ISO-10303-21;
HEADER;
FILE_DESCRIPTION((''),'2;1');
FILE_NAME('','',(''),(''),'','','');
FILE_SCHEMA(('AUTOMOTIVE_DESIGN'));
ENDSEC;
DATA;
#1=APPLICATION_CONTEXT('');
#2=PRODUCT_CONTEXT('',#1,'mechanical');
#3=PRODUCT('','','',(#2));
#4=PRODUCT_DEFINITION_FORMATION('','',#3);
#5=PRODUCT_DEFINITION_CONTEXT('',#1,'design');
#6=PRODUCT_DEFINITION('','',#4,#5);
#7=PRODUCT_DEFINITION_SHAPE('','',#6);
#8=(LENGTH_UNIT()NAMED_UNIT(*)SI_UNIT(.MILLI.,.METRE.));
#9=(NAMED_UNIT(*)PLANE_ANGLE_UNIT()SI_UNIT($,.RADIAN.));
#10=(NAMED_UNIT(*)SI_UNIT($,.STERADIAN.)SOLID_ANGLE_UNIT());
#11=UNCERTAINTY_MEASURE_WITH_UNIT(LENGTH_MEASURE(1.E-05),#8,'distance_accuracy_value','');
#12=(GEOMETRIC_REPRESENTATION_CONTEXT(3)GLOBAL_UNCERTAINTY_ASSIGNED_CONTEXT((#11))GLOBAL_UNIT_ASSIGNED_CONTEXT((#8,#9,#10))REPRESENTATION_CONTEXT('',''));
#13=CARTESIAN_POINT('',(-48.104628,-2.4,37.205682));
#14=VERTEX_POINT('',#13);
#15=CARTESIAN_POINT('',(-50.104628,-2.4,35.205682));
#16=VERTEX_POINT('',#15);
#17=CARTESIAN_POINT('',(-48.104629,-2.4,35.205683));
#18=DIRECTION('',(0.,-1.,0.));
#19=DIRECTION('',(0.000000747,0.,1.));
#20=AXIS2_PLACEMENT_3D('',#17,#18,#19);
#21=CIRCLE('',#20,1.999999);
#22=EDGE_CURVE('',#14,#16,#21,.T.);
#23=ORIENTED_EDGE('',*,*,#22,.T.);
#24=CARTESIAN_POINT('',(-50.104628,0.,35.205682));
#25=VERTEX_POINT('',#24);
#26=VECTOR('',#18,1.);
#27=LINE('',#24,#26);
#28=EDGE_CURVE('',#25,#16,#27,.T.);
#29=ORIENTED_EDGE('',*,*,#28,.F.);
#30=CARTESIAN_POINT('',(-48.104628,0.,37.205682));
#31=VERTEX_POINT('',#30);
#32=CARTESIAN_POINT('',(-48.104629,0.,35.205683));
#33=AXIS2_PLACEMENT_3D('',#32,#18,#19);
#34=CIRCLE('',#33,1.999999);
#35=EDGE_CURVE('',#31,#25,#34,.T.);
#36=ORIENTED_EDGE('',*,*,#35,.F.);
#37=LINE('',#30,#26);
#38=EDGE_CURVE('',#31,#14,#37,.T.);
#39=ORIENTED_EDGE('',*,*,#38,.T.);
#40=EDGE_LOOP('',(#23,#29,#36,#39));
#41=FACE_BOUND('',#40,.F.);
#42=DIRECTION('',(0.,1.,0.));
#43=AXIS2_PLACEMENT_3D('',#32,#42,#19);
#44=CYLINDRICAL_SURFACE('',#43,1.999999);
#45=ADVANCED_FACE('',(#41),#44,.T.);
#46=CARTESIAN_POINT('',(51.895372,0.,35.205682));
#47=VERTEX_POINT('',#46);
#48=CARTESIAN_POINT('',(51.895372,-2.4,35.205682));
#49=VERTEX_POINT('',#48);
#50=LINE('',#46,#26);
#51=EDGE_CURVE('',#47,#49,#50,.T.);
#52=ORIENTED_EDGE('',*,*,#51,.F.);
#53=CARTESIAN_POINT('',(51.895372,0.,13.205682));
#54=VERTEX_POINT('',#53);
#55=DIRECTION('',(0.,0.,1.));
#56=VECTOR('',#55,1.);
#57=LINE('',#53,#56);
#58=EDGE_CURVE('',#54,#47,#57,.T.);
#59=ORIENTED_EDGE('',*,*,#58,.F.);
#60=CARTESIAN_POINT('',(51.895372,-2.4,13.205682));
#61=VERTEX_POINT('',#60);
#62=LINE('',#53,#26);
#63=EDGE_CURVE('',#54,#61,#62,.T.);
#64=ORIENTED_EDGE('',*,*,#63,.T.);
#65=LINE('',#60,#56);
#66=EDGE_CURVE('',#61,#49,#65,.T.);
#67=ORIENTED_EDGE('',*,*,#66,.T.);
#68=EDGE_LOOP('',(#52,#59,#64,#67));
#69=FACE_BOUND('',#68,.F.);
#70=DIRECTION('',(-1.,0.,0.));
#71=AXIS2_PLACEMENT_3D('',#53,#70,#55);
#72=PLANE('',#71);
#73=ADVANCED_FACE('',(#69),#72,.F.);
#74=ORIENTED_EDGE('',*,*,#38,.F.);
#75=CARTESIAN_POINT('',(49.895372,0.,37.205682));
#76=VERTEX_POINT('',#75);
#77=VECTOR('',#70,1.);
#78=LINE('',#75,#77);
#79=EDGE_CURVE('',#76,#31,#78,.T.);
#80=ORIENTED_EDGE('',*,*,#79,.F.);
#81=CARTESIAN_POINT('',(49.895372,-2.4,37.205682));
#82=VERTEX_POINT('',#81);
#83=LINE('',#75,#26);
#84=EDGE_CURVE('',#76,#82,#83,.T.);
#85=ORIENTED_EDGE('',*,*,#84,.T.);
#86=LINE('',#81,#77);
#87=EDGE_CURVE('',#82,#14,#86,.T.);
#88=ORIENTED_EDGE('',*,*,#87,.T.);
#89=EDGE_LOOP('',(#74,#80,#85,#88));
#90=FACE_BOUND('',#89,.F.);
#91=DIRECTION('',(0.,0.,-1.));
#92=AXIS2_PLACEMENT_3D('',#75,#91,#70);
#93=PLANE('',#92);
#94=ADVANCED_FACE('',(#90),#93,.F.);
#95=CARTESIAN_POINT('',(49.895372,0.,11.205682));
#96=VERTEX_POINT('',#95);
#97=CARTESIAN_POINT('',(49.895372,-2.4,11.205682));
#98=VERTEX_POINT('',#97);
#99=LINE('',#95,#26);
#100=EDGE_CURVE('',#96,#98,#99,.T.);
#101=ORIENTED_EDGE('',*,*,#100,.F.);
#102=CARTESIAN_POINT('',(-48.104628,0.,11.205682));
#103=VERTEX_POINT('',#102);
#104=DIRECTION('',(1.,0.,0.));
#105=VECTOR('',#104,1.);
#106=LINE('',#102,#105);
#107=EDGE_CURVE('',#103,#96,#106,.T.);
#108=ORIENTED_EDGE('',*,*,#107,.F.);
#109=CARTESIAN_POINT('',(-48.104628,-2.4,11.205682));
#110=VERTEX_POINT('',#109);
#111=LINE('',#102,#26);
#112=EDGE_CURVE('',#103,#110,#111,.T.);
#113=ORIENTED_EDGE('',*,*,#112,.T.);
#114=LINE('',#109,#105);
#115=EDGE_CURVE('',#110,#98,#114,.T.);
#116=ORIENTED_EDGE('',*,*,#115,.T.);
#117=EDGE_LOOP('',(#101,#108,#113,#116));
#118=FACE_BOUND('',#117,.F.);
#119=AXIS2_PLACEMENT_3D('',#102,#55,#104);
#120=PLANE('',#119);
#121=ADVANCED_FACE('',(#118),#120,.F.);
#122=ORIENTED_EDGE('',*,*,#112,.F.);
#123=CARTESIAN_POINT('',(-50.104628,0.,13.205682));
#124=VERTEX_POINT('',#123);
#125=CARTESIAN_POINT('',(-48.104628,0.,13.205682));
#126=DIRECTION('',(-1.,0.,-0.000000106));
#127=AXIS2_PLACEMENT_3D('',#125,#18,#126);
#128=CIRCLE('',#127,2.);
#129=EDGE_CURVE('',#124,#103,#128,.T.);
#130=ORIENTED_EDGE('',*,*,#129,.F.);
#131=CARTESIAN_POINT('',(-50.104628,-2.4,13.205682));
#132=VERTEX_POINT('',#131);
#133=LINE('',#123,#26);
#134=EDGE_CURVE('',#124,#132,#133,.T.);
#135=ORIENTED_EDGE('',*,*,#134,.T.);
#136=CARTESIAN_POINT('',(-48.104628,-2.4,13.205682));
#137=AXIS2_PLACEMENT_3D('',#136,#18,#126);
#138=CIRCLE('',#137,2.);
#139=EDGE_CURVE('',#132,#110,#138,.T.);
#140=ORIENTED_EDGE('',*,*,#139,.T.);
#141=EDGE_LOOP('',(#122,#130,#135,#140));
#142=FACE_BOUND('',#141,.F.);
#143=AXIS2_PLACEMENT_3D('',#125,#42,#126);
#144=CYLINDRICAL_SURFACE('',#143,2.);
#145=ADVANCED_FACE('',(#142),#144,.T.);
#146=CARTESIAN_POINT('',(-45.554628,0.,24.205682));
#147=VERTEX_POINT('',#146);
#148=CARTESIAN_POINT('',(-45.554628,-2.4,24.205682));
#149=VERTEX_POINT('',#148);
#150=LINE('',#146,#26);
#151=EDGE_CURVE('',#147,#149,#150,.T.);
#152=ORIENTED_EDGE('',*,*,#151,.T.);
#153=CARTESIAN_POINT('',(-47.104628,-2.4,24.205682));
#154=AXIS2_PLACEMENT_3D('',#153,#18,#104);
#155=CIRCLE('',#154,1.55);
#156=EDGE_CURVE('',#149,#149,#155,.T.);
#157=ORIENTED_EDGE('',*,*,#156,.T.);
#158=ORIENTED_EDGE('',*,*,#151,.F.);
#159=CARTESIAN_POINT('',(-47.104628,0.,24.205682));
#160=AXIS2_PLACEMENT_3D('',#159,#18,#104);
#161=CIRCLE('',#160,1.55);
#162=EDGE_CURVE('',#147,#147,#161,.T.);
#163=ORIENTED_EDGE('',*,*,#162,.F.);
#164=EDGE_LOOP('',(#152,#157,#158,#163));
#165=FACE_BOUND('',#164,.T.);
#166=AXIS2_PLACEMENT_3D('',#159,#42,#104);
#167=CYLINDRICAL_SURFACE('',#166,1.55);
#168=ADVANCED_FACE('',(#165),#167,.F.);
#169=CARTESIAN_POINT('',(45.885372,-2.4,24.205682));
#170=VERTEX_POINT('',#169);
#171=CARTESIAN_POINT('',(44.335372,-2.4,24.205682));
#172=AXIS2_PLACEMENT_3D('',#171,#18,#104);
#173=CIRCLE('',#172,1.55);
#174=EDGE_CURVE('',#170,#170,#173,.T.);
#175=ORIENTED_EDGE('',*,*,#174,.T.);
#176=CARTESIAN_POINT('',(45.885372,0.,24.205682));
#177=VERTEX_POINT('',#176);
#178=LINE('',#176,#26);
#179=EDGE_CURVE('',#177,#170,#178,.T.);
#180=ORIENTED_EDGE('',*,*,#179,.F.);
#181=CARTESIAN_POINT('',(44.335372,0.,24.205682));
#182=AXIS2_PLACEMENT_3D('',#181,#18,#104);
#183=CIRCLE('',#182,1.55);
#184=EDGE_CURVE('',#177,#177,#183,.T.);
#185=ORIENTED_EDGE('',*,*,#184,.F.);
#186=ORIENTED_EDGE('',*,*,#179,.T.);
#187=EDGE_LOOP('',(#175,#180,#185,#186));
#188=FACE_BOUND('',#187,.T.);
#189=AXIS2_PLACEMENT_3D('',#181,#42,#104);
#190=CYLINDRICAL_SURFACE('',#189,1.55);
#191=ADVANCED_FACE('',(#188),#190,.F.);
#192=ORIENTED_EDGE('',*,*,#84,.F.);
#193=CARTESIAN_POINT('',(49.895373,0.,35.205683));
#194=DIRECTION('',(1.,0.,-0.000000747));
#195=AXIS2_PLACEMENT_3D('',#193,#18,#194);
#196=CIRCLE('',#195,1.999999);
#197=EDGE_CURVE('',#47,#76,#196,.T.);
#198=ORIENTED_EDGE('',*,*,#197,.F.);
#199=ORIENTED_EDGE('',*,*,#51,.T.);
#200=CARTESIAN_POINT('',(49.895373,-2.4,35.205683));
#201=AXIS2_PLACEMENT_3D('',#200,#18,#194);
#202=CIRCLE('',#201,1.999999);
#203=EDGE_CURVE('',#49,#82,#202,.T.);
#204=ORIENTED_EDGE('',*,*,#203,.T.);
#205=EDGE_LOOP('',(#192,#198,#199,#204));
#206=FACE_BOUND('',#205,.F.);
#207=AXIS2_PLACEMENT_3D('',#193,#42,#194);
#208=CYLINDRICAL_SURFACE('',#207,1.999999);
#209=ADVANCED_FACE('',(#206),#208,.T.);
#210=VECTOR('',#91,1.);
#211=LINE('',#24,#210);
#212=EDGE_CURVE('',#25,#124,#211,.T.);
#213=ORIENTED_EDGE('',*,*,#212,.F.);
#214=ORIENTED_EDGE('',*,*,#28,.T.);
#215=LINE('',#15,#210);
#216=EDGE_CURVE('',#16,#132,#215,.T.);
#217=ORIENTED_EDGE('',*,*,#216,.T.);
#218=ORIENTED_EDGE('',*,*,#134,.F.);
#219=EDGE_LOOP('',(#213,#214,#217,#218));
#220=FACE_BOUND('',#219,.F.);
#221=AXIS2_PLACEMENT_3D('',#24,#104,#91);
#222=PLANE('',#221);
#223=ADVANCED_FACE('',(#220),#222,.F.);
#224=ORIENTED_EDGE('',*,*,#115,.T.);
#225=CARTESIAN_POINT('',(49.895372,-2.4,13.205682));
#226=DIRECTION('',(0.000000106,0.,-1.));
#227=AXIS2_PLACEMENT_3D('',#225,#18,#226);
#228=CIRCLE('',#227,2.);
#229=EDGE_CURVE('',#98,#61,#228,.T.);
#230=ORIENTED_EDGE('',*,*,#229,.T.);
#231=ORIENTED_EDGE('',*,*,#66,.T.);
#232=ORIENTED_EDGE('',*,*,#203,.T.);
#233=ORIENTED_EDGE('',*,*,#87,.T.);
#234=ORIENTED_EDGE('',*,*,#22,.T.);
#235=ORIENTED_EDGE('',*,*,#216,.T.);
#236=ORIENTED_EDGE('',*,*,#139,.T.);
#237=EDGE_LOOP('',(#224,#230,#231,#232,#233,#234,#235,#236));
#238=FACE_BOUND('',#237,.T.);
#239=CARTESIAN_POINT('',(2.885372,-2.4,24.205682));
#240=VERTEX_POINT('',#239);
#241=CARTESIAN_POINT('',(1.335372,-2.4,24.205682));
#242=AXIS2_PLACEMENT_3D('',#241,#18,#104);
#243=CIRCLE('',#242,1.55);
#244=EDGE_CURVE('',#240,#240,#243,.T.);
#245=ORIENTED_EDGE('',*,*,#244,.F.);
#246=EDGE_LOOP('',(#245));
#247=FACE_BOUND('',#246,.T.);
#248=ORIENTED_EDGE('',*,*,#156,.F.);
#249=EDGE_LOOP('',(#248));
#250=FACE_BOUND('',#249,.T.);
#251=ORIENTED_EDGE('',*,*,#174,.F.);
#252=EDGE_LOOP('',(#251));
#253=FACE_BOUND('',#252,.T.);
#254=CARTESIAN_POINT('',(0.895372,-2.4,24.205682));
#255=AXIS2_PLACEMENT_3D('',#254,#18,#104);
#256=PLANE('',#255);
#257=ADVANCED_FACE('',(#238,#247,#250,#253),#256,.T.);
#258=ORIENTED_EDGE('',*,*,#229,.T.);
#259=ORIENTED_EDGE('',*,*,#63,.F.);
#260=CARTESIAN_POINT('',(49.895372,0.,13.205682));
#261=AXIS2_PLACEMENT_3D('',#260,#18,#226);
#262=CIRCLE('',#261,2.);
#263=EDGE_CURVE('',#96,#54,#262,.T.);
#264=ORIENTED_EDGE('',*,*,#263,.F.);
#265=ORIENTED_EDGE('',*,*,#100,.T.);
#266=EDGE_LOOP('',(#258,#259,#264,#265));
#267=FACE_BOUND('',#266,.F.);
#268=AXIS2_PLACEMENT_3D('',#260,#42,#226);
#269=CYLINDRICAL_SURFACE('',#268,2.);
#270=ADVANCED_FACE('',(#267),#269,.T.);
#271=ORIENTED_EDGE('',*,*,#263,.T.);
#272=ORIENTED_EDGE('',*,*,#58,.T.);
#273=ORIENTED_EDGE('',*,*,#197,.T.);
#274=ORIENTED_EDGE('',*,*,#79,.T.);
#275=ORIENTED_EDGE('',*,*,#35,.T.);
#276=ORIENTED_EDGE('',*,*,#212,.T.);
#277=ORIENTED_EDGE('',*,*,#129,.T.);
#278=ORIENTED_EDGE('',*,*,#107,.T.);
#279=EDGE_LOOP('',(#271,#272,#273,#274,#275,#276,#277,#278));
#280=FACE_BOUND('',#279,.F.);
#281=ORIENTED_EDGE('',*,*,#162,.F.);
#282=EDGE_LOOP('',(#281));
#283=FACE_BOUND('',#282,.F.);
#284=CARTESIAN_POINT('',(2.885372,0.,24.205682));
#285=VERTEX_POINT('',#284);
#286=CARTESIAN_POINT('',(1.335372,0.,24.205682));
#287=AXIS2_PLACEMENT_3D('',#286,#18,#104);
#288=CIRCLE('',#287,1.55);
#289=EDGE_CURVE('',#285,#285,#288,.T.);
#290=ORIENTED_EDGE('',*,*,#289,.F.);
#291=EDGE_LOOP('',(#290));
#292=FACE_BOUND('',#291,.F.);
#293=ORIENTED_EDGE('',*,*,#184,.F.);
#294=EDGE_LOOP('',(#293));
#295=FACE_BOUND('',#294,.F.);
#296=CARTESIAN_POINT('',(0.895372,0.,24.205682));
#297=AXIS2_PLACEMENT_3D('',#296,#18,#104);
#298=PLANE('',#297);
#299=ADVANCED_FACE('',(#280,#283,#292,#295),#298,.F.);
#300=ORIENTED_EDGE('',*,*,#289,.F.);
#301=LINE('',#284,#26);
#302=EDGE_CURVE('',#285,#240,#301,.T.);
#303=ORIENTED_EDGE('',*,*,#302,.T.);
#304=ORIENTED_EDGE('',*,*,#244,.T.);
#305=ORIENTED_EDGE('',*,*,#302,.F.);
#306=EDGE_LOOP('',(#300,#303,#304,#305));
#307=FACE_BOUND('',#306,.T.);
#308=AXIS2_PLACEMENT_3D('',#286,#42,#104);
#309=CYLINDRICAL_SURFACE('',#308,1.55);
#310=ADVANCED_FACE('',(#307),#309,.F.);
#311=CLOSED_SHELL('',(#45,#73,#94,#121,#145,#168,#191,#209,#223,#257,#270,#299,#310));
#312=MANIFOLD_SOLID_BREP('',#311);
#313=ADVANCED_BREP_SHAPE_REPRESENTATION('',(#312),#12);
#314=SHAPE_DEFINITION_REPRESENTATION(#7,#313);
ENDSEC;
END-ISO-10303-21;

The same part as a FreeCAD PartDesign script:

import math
import FreeCAD as App
import Part
import Sketcher
from FreeCAD import Vector

doc = App.newDocument("Part")
body = doc.addObject("PartDesign::Body", "Body")

# Sketch on XZ plane
sketch1 = body.newObject("Sketcher::SketchObject", "Sketch")
sketch1.AttachmentSupport = (doc.getObject("XZ_Plane"), [""])
sketch1.MapMode = "FlatFace"
sketch1.addGeometry([
    Part.LineSegment(Vector(49.9, 37.2, 0), Vector(-48.1, 37.2, 0)),  # 0
    Part.ArcOfCircle(Part.Circle(Vector(-48.1, 35.2, 0), Vector(0, 0, 1), 2), math.radians(90), math.radians(180)),  # 1
    Part.LineSegment(Vector(-50.1, 35.2, 0), Vector(-50.1, 13.2, 0)),  # 2
    Part.ArcOfCircle(Part.Circle(Vector(-48.1, 13.2, 0), Vector(0, 0, 1), 2), math.radians(-180), math.radians(-90)),  # 3
    Part.LineSegment(Vector(-48.1, 11.2, 0), Vector(49.9, 11.2, 0)),  # 4
    Part.ArcOfCircle(Part.Circle(Vector(49.9, 13.2, 0), Vector(0, 0, 1), 2), math.radians(-90), math.radians(0)),  # 5
    Part.LineSegment(Vector(51.9, 13.2, 0), Vector(51.9, 35.2, 0)),  # 6
    Part.ArcOfCircle(Part.Circle(Vector(49.9, 35.2, 0), Vector(0, 0, 1), 2), math.radians(0), math.radians(90)),  # 7
    Part.Circle(Vector(-47.1, 24.2, 0), Vector(0, 0, 1), 1.6),  # 8
    Part.Circle(Vector(1.3, 24.2, 0), Vector(0, 0, 1), 1.6),  # 9
    Part.Circle(Vector(44.3, 24.2, 0), Vector(0, 0, 1), 1.6),  # 10
], False)
sketch1.addConstraint([
    Sketcher.Constraint("Tangent", 0, 2, 1, 1),
    Sketcher.Constraint("Tangent", 1, 2, 2, 1),
    Sketcher.Constraint("Tangent", 2, 2, 3, 1),
    Sketcher.Constraint("Tangent", 3, 2, 4, 1),
    Sketcher.Constraint("Tangent", 4, 2, 5, 1),
    Sketcher.Constraint("Tangent", 5, 2, 6, 1),
    Sketcher.Constraint("Tangent", 6, 2, 7, 1),
    Sketcher.Constraint("Tangent", 7, 2, 0, 1),
    Sketcher.Constraint("Horizontal", 0),
    Sketcher.Constraint("Vertical", 2),
    Sketcher.Constraint("Horizontal", 4),
    Sketcher.Constraint("Vertical", 6),
    Sketcher.Constraint("Equal", 1, 3),
    Sketcher.Constraint("Equal", 3, 5),
    Sketcher.Constraint("Equal", 5, 7),
    Sketcher.Constraint("Equal", 8, 9),
    Sketcher.Constraint("Equal", 9, 10),
    Sketcher.Constraint("Horizontal", 8, 3, 9, 3),
    Sketcher.Constraint("Horizontal", 9, 3, 10, 3),
    Sketcher.Constraint("Radius", 1, 1.999999),
    Sketcher.Constraint("Diameter", 8, 3.1),
    Sketcher.Constraint("DistanceX", 0, 2, 0, 1, 98.0),
    Sketcher.Constraint("DistanceY", 2, 2, 2, 1, 22.0),
    Sketcher.Constraint("DistanceX", 3, 3, 8, 3, 1.0),
    Sketcher.Constraint("DistanceY", 3, 3, 8, 3, 11.0),
    Sketcher.Constraint("DistanceX", 9, 3, 10, 3, 43.0),
    Sketcher.Constraint("DistanceX", 8, 3, 9, 3, 48.44),
    Sketcher.Constraint("DistanceX", 1, 3, -1, 1, 48.104629),
    Sketcher.Constraint("DistanceY", -1, 1, 8, 3, 24.205682),
])
pad1 = body.newObject("PartDesign::Pad", "Pad")
pad1.Profile = sketch1
pad1.Length = 2.4

doc.recompute()
